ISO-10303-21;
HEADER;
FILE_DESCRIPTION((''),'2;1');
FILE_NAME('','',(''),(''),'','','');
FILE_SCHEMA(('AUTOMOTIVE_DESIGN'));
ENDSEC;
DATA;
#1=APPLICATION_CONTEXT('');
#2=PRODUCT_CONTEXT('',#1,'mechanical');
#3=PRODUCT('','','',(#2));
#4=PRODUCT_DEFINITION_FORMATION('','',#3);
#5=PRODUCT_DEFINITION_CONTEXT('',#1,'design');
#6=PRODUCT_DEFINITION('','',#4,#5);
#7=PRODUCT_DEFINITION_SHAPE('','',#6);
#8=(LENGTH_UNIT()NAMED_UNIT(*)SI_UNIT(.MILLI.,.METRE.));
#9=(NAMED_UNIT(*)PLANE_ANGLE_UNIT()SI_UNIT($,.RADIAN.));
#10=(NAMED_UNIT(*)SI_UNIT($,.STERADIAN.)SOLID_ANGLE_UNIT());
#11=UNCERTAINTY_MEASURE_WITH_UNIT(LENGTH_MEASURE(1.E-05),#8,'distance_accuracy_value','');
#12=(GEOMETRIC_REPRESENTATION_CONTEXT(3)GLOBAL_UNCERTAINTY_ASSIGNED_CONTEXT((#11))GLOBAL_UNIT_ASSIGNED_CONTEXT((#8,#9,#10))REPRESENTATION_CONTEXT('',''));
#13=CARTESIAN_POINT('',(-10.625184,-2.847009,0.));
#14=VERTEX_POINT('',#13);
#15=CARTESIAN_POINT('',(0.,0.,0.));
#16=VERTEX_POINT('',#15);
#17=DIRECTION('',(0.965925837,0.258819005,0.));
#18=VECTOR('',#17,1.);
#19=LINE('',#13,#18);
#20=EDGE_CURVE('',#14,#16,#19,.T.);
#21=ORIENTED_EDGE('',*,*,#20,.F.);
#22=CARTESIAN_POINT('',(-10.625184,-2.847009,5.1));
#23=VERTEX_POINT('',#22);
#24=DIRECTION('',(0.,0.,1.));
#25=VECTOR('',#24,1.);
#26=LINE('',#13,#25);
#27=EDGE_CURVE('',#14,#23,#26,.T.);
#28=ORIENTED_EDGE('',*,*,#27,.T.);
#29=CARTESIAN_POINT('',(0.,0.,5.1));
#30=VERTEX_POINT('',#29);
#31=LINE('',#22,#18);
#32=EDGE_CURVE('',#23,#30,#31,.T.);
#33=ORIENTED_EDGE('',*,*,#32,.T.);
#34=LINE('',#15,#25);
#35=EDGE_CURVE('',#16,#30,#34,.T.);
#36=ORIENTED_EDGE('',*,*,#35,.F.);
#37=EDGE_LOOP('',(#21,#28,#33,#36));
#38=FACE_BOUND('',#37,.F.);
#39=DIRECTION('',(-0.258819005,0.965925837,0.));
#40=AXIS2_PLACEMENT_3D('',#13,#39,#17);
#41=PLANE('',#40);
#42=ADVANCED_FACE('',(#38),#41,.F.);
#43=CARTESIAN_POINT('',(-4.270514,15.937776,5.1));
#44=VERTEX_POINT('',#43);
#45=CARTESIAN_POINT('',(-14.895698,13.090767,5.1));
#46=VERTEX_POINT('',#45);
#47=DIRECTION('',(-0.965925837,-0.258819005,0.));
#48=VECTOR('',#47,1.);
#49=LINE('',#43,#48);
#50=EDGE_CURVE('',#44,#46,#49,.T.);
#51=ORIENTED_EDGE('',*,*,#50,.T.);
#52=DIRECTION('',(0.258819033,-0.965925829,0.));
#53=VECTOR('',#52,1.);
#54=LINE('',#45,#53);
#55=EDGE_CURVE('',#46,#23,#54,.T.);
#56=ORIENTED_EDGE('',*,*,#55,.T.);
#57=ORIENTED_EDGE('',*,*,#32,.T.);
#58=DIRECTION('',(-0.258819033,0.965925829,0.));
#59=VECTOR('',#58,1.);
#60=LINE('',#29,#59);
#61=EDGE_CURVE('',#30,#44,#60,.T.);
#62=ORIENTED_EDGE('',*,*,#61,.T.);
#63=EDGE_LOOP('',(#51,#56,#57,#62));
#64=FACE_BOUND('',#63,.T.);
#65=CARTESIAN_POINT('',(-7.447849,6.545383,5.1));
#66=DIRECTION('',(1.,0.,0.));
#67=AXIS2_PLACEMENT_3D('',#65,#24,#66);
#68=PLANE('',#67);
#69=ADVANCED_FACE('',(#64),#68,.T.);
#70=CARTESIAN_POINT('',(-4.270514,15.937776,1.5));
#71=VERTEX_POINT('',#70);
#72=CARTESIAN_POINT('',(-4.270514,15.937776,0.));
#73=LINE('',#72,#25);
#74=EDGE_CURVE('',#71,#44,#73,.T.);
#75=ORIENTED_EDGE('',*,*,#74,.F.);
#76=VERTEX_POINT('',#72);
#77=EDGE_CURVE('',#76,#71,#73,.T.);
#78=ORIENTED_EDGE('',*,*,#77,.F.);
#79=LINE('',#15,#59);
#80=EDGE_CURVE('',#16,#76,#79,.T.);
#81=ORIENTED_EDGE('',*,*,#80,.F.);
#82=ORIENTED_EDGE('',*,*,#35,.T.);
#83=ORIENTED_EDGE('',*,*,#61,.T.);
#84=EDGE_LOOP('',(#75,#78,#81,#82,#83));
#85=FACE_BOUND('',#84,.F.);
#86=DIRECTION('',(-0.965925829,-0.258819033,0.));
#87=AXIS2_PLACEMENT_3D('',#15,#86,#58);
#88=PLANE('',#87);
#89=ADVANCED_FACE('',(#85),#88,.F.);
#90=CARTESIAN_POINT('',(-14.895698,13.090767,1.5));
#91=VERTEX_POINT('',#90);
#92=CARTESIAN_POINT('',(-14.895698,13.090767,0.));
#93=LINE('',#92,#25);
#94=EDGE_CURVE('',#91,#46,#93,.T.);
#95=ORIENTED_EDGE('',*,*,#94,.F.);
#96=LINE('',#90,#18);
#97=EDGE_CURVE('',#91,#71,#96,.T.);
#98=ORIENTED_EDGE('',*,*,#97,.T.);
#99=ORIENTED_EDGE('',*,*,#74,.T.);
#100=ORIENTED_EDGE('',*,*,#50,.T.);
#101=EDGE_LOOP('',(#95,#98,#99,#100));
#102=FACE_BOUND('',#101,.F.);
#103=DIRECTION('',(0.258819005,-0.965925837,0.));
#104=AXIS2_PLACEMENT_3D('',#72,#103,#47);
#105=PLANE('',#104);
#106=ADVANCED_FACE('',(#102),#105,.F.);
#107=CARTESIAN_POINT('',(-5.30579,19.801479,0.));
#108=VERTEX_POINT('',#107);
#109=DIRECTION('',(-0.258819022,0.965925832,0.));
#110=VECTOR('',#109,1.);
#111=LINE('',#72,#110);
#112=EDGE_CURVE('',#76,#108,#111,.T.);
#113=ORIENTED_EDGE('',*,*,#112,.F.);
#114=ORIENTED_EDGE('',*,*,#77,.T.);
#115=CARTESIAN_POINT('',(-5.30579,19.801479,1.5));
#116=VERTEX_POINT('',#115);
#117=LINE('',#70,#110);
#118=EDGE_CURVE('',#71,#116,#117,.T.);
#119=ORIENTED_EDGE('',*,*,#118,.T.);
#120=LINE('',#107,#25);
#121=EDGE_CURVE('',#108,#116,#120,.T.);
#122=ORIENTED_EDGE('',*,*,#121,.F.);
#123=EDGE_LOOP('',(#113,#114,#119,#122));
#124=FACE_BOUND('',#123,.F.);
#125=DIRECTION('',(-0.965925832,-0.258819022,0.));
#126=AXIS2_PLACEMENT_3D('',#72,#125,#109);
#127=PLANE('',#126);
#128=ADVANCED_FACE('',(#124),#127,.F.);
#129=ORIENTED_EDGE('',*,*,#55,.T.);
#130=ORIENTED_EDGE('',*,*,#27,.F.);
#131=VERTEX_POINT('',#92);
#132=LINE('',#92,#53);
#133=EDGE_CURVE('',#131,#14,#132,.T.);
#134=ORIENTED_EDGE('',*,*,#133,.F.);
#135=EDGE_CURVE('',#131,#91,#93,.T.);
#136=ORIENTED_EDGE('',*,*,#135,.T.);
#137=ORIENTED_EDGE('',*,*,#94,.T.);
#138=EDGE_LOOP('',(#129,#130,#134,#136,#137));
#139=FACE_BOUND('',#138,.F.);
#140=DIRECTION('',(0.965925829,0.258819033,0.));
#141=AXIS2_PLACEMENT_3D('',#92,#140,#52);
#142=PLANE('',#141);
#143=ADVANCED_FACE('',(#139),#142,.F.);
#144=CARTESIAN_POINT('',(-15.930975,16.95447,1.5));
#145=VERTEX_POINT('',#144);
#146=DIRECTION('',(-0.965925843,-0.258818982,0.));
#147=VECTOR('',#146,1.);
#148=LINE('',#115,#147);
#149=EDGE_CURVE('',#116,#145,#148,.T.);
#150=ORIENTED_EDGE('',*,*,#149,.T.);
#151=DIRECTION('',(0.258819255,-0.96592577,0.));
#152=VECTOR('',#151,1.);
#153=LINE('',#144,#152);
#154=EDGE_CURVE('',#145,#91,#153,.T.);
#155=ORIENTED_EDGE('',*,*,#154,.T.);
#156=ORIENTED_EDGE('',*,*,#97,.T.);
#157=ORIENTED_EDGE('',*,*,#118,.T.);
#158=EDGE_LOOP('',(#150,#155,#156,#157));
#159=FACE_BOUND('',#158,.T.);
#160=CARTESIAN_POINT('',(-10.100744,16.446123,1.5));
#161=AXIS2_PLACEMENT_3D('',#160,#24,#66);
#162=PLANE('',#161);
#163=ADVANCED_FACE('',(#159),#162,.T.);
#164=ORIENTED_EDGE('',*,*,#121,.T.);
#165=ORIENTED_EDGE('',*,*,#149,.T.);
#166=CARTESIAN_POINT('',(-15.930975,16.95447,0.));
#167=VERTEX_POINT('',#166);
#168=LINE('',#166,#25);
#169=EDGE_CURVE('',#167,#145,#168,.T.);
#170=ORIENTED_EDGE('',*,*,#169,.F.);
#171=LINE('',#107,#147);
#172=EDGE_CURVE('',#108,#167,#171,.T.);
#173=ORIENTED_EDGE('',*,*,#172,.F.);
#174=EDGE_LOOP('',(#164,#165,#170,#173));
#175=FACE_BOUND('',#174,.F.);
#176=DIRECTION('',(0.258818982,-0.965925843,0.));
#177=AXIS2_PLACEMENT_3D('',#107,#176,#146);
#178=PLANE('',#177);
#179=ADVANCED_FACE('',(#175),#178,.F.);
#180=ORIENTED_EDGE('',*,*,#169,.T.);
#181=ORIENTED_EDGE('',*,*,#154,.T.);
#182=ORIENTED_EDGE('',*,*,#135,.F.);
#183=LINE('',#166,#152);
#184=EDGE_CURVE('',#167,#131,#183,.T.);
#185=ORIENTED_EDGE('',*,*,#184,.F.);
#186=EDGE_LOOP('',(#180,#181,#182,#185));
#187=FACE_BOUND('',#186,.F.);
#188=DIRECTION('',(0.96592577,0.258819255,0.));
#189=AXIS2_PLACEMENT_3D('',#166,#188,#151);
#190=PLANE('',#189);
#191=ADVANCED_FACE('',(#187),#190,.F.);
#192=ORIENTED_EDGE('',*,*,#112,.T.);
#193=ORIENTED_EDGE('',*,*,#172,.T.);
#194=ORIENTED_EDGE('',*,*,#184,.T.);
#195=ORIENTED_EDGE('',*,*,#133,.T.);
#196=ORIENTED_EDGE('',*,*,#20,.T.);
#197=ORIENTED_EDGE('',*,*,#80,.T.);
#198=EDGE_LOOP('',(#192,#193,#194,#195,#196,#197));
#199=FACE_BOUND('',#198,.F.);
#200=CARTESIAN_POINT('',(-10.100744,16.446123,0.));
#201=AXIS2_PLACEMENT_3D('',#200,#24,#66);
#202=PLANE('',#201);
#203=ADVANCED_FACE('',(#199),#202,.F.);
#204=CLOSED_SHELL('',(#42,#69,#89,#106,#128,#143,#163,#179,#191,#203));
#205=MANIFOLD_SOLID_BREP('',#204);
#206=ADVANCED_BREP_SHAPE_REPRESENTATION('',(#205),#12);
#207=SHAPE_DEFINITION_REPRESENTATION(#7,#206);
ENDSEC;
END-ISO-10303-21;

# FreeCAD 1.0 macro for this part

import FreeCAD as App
import Part
import Sketcher
from FreeCAD import Vector
Q = App.Units.Quantity


def add_polygon(sketch, points):
    """Adds a closed chain of lines whose ends are joined by coincident constraints."""
    first, n = sketch.GeometryCount, len(points)
    for a, b in zip(points, points[1:] + points[:1]):
        sketch.addGeometry(Part.LineSegment(App.Vector(*a, 0), App.Vector(*b, 0)), False)
    for i in range(n):
        sketch.addConstraint(Sketcher.Constraint("Coincident", first + i, 2, first + (i + 1) % n, 1))

doc = App.newDocument("Part")
body = doc.addObject("PartDesign::Body", "Body")

sketch1 = body.newObject("Sketcher::SketchObject", "Sketch")
sketch1.AttachmentSupport = (doc.getObject("XY_Plane"), [""])
sketch1.MapMode = "FlatFace"
add_polygon(sketch1, [(0, 0), (-4, 16), (-15, 13), (-11, -3)])
sketch1.addConstraint([
    Sketcher.Constraint("Coincident", 3, 2, -1, 1),
    Sketcher.Constraint("Perpendicular", 0, 1),
    Sketcher.Constraint("Perpendicular", 1, 2),
    Sketcher.Constraint("Perpendicular", 2, 3),
    Sketcher.Constraint("Angle", 0, Q("104.999999 deg")),
    Sketcher.Constraint("Distance", 1, Q("11 mm")),
    Sketcher.Constraint("Distance", 0, Q("16.5 mm")),
])
pad1 = body.newObject("PartDesign::Pad", "Pad")
pad1.Profile = sketch1
pad1.Length = 5.1

sketch2 = body.newObject("Sketcher::SketchObject", "Sketch001")
sketch2.AttachmentSupport = (doc.getObject("XY_Plane"), [""])
sketch2.MapMode = "FlatFace"
add_polygon(sketch2, [(-4.3, 15.9), (-5.3, 19.8), (-15.9, 17), (-14.9, 13.1)])
sketch2.addConstraint([
    Sketcher.Constraint("Perpendicular", 0, 1),
    Sketcher.Constraint("Perpendicular", 1, 2),
    Sketcher.Constraint("Perpendicular", 2, 3),
    Sketcher.Constraint("Angle", 0, Q("104.999999 deg")),
    Sketcher.Constraint("Distance", 0, Q("4 mm")),
    Sketcher.Constraint("Distance", 1, Q("11.000001 mm")),
    Sketcher.Constraint("DistanceX", 0, 2, -1, 1, Q("5.30579 mm")),
    Sketcher.Constraint("DistanceY", -1, 1, 0, 2, Q("19.801479 mm")),
])
pad2 = body.newObject("PartDesign::Pad", "Pad001")
pad2.Profile = sketch2
pad2.Length = 1.5

doc.recompute()
